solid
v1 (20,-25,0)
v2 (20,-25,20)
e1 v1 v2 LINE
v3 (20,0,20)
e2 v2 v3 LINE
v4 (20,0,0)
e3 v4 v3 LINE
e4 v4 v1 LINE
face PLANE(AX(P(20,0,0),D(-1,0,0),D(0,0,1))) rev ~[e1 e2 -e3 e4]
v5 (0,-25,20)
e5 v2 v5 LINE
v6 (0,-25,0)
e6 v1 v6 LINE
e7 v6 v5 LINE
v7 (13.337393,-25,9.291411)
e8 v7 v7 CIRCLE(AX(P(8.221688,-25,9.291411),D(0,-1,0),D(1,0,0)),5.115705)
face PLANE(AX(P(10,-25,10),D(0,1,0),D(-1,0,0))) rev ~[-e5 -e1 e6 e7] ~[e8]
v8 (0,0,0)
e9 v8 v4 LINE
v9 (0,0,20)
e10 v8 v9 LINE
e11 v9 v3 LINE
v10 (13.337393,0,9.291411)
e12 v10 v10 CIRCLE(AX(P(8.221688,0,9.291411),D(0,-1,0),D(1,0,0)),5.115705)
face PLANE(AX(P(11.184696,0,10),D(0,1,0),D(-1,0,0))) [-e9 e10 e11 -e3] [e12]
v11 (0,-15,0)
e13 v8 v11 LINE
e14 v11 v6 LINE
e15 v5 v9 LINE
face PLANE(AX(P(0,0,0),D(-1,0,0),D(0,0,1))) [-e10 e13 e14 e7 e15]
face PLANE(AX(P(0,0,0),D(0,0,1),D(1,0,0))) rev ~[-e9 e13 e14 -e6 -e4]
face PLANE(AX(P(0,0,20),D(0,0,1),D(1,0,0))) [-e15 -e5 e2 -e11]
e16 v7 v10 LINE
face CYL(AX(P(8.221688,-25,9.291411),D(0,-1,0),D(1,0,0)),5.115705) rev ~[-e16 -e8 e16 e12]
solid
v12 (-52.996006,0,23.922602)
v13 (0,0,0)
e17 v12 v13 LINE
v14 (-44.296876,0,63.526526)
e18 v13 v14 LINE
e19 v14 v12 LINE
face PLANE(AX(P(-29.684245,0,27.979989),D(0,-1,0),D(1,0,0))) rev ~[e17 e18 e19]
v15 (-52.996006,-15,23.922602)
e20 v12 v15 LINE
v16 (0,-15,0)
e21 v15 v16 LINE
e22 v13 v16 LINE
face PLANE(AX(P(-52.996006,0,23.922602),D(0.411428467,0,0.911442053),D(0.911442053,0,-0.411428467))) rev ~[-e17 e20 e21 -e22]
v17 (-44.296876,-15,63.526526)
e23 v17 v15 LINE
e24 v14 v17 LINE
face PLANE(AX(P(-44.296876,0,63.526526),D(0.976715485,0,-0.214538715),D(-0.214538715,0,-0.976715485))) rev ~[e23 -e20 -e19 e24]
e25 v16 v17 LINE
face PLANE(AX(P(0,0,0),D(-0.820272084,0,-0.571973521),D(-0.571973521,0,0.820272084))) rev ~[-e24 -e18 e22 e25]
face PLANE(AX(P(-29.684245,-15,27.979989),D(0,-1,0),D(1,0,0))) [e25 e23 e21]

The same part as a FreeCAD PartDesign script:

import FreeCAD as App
import Part
import Sketcher

V = App.Vector

doc = App.newDocument("Part")
body = doc.addObject("PartDesign::Body", "Body")

sketch1 = doc.addObject("Sketcher::SketchObject", "Sketch")
body.addObject(sketch1)
sketch1.AttachmentSupport = (doc.XZ_Plane, [""])
sketch1.MapMode = "FlatFace"
sketch1.addGeometry(Part.LineSegment(V(-52.996006, 23.922602, 0), V(0, 0, 0)), False)
sketch1.addGeometry(Part.LineSegment(V(0, 0, 0), V(-44.296876, 63.526526, 0)), False)
sketch1.addGeometry(Part.LineSegment(V(-44.296876, 63.526526, 0), V(-52.996006, 23.922602, 0)), False)
sketch1.addConstraint(Sketcher.Constraint("Coincident", 0, 2, 1, 1))
sketch1.addConstraint(Sketcher.Constraint("Coincident", 1, 2, 2, 1))
sketch1.addConstraint(Sketcher.Constraint("Coincident", 2, 2, 0, 1))
sketch1.addConstraint(Sketcher.Constraint("Coincident", 0, 2, -1, 1))
sketch1.addConstraint(Sketcher.Constraint("DistanceX", 2, 2, 1, 2, 8.69913))
sketch1.addConstraint(Sketcher.Constraint("Distance", 0, 58.145228))
sketch1.addConstraint(Sketcher.Constraint("Distance", 1, 77.445676))
sketch1.addConstraint(Sketcher.Constraint("Distance", 2, 40.548066))
pad1 = doc.addObject("PartDesign::Pad", "Pad")
body.addObject(pad1)
pad1.Profile = sketch1
pad1.Length = 15
body2 = doc.addObject("PartDesign::Body", "Body001")

sketch2 = doc.addObject("Sketcher::SketchObject", "Sketch001")
body2.addObject(sketch2)
sketch2.AttachmentSupport = (doc.getObject("XZ_Plane001"), [""])
sketch2.MapMode = "FlatFace"
sketch2.addGeometry(Part.LineSegment(V(0, 20, 0), V(0, 0, 0)), False)
sketch2.addGeometry(Part.LineSegment(V(0, 0, 0), V(20, 0, 0)), False)
sketch2.addGeometry(Part.LineSegment(V(20, 0, 0), V(20, 20, 0)), False)
sketch2.addGeometry(Part.LineSegment(V(20, 20, 0), V(0, 20, 0)), False)
sketch2.addConstraint(Sketcher.Constraint("Coincident", 0, 2, 1, 1))
sketch2.addConstraint(Sketcher.Constraint("Coincident", 1, 2, 2, 1))
sketch2.addConstraint(Sketcher.Constraint("Coincident", 2, 2, 3, 1))
sketch2.addConstraint(Sketcher.Constraint("Coincident", 3, 2, 0, 1))
sketch2.addConstraint(Sketcher.Constraint("Vertical", 0))
sketch2.addConstraint(Sketcher.Constraint("Horizontal", 1))
sketch2.addConstraint(Sketcher.Constraint("Vertical", 2))
sketch2.addConstraint(Sketcher.Constraint("Horizontal", 3))
sketch2.addConstraint(Sketcher.Constraint("Coincident", 0, 2, -1, 1))
sketch2.addConstraint(Sketcher.Constraint("Equal", 3, 0))
sketch2.addConstraint(Sketcher.Constraint("DistanceX", 1, 1, 1, 2, 20.0))
pad2 = doc.addObject("PartDesign::Pad", "Pad001")
body2.addObject(pad2)
pad2.Profile = sketch2
pad2.Length = 20
body.AllowCompound = True
doc.recompute()

boolean = doc.addObject("PartDesign::Boolean", "Boolean")
body.addObject(boolean)
boolean.Type = "Fuse"
boolean.addObjects([body2])

sketch3 = doc.addObject("Sketcher::SketchObject", "Sketch002")
body.addObject(sketch3)
sketch3.AttachmentSupport = (doc.XZ_Plane, [""])
sketch3.MapMode = "FlatFace"
sketch3.addGeometry(Part.LineSegment(V(20, 20, 0), V(20, 0, 0)), False)
sketch3.addGeometry(Part.LineSegment(V(20, 0, 0), V(0, 0, 0)), False)
sketch3.addGeometry(Part.LineSegment(V(0, 0, 0), V(0, 20, 0)), False)
sketch3.addGeometry(Part.LineSegment(V(0, 20, 0), V(20, 20, 0)), False)
sketch3.addConstraint(Sketcher.Constraint("Coincident", 0, 2, 1, 1))
sketch3.addConstraint(Sketcher.Constraint("Coincident", 1, 2, 2, 1))
sketch3.addConstraint(Sketcher.Constraint("Coincident", 2, 2, 3, 1))
sketch3.addConstraint(Sketcher.Constraint("Coincident", 3, 2, 0, 1))
sketch3.addConstraint(Sketcher.Constraint("Vertical", 0))
sketch3.addConstraint(Sketcher.Constraint("Horizontal", 1))
sketch3.addConstraint(Sketcher.Constraint("Vertical", 2))
sketch3.addConstraint(Sketcher.Constraint("Horizontal", 3))
sketch3.addConstraint(Sketcher.Constraint("Coincident", 1, 2, -1, 1))
sketch3.addConstraint(Sketcher.Constraint("Equal", 3, 0))
sketch3.addConstraint(Sketcher.Constraint("DistanceX", 1, 2, 1, 1, 20.0))
pad3 = doc.addObject("PartDesign::Pad", "Pad002")
body.addObject(pad3)
pad3.Profile = sketch3
pad3.Length = 25

sketch4 = doc.addObject("Sketcher::SketchObject", "Sketch003")
body.addObject(sketch4)
sketch4.AttachmentSupport = (doc.XZ_Plane, [""])
sketch4.MapMode = "FlatFace"
sketch4.AttachmentOffset = App.Placement(V(0, 0, 25), App.Rotation())
sketch4.addGeometry(Part.Circle(V(8.221688, 9.291411, 0), V(0, 0, 1), 5.115705), False)
sketch4.addConstraint(Sketcher.Constraint("Diameter", 0, 10.23141))
sketch4.addConstraint(Sketcher.Constraint("DistanceY", -1, 1, 0, 3, 9.291411))
sketch4.addConstraint(Sketcher.Constraint("DistanceX", -1, 1, 0, 3, 8.221688))
pocket1 = doc.addObject("PartDesign::Pocket", "Pocket")
body.addObject(pocket1)
pocket1.Profile = sketch4
pocket1.Length = 25

doc.recompute()
